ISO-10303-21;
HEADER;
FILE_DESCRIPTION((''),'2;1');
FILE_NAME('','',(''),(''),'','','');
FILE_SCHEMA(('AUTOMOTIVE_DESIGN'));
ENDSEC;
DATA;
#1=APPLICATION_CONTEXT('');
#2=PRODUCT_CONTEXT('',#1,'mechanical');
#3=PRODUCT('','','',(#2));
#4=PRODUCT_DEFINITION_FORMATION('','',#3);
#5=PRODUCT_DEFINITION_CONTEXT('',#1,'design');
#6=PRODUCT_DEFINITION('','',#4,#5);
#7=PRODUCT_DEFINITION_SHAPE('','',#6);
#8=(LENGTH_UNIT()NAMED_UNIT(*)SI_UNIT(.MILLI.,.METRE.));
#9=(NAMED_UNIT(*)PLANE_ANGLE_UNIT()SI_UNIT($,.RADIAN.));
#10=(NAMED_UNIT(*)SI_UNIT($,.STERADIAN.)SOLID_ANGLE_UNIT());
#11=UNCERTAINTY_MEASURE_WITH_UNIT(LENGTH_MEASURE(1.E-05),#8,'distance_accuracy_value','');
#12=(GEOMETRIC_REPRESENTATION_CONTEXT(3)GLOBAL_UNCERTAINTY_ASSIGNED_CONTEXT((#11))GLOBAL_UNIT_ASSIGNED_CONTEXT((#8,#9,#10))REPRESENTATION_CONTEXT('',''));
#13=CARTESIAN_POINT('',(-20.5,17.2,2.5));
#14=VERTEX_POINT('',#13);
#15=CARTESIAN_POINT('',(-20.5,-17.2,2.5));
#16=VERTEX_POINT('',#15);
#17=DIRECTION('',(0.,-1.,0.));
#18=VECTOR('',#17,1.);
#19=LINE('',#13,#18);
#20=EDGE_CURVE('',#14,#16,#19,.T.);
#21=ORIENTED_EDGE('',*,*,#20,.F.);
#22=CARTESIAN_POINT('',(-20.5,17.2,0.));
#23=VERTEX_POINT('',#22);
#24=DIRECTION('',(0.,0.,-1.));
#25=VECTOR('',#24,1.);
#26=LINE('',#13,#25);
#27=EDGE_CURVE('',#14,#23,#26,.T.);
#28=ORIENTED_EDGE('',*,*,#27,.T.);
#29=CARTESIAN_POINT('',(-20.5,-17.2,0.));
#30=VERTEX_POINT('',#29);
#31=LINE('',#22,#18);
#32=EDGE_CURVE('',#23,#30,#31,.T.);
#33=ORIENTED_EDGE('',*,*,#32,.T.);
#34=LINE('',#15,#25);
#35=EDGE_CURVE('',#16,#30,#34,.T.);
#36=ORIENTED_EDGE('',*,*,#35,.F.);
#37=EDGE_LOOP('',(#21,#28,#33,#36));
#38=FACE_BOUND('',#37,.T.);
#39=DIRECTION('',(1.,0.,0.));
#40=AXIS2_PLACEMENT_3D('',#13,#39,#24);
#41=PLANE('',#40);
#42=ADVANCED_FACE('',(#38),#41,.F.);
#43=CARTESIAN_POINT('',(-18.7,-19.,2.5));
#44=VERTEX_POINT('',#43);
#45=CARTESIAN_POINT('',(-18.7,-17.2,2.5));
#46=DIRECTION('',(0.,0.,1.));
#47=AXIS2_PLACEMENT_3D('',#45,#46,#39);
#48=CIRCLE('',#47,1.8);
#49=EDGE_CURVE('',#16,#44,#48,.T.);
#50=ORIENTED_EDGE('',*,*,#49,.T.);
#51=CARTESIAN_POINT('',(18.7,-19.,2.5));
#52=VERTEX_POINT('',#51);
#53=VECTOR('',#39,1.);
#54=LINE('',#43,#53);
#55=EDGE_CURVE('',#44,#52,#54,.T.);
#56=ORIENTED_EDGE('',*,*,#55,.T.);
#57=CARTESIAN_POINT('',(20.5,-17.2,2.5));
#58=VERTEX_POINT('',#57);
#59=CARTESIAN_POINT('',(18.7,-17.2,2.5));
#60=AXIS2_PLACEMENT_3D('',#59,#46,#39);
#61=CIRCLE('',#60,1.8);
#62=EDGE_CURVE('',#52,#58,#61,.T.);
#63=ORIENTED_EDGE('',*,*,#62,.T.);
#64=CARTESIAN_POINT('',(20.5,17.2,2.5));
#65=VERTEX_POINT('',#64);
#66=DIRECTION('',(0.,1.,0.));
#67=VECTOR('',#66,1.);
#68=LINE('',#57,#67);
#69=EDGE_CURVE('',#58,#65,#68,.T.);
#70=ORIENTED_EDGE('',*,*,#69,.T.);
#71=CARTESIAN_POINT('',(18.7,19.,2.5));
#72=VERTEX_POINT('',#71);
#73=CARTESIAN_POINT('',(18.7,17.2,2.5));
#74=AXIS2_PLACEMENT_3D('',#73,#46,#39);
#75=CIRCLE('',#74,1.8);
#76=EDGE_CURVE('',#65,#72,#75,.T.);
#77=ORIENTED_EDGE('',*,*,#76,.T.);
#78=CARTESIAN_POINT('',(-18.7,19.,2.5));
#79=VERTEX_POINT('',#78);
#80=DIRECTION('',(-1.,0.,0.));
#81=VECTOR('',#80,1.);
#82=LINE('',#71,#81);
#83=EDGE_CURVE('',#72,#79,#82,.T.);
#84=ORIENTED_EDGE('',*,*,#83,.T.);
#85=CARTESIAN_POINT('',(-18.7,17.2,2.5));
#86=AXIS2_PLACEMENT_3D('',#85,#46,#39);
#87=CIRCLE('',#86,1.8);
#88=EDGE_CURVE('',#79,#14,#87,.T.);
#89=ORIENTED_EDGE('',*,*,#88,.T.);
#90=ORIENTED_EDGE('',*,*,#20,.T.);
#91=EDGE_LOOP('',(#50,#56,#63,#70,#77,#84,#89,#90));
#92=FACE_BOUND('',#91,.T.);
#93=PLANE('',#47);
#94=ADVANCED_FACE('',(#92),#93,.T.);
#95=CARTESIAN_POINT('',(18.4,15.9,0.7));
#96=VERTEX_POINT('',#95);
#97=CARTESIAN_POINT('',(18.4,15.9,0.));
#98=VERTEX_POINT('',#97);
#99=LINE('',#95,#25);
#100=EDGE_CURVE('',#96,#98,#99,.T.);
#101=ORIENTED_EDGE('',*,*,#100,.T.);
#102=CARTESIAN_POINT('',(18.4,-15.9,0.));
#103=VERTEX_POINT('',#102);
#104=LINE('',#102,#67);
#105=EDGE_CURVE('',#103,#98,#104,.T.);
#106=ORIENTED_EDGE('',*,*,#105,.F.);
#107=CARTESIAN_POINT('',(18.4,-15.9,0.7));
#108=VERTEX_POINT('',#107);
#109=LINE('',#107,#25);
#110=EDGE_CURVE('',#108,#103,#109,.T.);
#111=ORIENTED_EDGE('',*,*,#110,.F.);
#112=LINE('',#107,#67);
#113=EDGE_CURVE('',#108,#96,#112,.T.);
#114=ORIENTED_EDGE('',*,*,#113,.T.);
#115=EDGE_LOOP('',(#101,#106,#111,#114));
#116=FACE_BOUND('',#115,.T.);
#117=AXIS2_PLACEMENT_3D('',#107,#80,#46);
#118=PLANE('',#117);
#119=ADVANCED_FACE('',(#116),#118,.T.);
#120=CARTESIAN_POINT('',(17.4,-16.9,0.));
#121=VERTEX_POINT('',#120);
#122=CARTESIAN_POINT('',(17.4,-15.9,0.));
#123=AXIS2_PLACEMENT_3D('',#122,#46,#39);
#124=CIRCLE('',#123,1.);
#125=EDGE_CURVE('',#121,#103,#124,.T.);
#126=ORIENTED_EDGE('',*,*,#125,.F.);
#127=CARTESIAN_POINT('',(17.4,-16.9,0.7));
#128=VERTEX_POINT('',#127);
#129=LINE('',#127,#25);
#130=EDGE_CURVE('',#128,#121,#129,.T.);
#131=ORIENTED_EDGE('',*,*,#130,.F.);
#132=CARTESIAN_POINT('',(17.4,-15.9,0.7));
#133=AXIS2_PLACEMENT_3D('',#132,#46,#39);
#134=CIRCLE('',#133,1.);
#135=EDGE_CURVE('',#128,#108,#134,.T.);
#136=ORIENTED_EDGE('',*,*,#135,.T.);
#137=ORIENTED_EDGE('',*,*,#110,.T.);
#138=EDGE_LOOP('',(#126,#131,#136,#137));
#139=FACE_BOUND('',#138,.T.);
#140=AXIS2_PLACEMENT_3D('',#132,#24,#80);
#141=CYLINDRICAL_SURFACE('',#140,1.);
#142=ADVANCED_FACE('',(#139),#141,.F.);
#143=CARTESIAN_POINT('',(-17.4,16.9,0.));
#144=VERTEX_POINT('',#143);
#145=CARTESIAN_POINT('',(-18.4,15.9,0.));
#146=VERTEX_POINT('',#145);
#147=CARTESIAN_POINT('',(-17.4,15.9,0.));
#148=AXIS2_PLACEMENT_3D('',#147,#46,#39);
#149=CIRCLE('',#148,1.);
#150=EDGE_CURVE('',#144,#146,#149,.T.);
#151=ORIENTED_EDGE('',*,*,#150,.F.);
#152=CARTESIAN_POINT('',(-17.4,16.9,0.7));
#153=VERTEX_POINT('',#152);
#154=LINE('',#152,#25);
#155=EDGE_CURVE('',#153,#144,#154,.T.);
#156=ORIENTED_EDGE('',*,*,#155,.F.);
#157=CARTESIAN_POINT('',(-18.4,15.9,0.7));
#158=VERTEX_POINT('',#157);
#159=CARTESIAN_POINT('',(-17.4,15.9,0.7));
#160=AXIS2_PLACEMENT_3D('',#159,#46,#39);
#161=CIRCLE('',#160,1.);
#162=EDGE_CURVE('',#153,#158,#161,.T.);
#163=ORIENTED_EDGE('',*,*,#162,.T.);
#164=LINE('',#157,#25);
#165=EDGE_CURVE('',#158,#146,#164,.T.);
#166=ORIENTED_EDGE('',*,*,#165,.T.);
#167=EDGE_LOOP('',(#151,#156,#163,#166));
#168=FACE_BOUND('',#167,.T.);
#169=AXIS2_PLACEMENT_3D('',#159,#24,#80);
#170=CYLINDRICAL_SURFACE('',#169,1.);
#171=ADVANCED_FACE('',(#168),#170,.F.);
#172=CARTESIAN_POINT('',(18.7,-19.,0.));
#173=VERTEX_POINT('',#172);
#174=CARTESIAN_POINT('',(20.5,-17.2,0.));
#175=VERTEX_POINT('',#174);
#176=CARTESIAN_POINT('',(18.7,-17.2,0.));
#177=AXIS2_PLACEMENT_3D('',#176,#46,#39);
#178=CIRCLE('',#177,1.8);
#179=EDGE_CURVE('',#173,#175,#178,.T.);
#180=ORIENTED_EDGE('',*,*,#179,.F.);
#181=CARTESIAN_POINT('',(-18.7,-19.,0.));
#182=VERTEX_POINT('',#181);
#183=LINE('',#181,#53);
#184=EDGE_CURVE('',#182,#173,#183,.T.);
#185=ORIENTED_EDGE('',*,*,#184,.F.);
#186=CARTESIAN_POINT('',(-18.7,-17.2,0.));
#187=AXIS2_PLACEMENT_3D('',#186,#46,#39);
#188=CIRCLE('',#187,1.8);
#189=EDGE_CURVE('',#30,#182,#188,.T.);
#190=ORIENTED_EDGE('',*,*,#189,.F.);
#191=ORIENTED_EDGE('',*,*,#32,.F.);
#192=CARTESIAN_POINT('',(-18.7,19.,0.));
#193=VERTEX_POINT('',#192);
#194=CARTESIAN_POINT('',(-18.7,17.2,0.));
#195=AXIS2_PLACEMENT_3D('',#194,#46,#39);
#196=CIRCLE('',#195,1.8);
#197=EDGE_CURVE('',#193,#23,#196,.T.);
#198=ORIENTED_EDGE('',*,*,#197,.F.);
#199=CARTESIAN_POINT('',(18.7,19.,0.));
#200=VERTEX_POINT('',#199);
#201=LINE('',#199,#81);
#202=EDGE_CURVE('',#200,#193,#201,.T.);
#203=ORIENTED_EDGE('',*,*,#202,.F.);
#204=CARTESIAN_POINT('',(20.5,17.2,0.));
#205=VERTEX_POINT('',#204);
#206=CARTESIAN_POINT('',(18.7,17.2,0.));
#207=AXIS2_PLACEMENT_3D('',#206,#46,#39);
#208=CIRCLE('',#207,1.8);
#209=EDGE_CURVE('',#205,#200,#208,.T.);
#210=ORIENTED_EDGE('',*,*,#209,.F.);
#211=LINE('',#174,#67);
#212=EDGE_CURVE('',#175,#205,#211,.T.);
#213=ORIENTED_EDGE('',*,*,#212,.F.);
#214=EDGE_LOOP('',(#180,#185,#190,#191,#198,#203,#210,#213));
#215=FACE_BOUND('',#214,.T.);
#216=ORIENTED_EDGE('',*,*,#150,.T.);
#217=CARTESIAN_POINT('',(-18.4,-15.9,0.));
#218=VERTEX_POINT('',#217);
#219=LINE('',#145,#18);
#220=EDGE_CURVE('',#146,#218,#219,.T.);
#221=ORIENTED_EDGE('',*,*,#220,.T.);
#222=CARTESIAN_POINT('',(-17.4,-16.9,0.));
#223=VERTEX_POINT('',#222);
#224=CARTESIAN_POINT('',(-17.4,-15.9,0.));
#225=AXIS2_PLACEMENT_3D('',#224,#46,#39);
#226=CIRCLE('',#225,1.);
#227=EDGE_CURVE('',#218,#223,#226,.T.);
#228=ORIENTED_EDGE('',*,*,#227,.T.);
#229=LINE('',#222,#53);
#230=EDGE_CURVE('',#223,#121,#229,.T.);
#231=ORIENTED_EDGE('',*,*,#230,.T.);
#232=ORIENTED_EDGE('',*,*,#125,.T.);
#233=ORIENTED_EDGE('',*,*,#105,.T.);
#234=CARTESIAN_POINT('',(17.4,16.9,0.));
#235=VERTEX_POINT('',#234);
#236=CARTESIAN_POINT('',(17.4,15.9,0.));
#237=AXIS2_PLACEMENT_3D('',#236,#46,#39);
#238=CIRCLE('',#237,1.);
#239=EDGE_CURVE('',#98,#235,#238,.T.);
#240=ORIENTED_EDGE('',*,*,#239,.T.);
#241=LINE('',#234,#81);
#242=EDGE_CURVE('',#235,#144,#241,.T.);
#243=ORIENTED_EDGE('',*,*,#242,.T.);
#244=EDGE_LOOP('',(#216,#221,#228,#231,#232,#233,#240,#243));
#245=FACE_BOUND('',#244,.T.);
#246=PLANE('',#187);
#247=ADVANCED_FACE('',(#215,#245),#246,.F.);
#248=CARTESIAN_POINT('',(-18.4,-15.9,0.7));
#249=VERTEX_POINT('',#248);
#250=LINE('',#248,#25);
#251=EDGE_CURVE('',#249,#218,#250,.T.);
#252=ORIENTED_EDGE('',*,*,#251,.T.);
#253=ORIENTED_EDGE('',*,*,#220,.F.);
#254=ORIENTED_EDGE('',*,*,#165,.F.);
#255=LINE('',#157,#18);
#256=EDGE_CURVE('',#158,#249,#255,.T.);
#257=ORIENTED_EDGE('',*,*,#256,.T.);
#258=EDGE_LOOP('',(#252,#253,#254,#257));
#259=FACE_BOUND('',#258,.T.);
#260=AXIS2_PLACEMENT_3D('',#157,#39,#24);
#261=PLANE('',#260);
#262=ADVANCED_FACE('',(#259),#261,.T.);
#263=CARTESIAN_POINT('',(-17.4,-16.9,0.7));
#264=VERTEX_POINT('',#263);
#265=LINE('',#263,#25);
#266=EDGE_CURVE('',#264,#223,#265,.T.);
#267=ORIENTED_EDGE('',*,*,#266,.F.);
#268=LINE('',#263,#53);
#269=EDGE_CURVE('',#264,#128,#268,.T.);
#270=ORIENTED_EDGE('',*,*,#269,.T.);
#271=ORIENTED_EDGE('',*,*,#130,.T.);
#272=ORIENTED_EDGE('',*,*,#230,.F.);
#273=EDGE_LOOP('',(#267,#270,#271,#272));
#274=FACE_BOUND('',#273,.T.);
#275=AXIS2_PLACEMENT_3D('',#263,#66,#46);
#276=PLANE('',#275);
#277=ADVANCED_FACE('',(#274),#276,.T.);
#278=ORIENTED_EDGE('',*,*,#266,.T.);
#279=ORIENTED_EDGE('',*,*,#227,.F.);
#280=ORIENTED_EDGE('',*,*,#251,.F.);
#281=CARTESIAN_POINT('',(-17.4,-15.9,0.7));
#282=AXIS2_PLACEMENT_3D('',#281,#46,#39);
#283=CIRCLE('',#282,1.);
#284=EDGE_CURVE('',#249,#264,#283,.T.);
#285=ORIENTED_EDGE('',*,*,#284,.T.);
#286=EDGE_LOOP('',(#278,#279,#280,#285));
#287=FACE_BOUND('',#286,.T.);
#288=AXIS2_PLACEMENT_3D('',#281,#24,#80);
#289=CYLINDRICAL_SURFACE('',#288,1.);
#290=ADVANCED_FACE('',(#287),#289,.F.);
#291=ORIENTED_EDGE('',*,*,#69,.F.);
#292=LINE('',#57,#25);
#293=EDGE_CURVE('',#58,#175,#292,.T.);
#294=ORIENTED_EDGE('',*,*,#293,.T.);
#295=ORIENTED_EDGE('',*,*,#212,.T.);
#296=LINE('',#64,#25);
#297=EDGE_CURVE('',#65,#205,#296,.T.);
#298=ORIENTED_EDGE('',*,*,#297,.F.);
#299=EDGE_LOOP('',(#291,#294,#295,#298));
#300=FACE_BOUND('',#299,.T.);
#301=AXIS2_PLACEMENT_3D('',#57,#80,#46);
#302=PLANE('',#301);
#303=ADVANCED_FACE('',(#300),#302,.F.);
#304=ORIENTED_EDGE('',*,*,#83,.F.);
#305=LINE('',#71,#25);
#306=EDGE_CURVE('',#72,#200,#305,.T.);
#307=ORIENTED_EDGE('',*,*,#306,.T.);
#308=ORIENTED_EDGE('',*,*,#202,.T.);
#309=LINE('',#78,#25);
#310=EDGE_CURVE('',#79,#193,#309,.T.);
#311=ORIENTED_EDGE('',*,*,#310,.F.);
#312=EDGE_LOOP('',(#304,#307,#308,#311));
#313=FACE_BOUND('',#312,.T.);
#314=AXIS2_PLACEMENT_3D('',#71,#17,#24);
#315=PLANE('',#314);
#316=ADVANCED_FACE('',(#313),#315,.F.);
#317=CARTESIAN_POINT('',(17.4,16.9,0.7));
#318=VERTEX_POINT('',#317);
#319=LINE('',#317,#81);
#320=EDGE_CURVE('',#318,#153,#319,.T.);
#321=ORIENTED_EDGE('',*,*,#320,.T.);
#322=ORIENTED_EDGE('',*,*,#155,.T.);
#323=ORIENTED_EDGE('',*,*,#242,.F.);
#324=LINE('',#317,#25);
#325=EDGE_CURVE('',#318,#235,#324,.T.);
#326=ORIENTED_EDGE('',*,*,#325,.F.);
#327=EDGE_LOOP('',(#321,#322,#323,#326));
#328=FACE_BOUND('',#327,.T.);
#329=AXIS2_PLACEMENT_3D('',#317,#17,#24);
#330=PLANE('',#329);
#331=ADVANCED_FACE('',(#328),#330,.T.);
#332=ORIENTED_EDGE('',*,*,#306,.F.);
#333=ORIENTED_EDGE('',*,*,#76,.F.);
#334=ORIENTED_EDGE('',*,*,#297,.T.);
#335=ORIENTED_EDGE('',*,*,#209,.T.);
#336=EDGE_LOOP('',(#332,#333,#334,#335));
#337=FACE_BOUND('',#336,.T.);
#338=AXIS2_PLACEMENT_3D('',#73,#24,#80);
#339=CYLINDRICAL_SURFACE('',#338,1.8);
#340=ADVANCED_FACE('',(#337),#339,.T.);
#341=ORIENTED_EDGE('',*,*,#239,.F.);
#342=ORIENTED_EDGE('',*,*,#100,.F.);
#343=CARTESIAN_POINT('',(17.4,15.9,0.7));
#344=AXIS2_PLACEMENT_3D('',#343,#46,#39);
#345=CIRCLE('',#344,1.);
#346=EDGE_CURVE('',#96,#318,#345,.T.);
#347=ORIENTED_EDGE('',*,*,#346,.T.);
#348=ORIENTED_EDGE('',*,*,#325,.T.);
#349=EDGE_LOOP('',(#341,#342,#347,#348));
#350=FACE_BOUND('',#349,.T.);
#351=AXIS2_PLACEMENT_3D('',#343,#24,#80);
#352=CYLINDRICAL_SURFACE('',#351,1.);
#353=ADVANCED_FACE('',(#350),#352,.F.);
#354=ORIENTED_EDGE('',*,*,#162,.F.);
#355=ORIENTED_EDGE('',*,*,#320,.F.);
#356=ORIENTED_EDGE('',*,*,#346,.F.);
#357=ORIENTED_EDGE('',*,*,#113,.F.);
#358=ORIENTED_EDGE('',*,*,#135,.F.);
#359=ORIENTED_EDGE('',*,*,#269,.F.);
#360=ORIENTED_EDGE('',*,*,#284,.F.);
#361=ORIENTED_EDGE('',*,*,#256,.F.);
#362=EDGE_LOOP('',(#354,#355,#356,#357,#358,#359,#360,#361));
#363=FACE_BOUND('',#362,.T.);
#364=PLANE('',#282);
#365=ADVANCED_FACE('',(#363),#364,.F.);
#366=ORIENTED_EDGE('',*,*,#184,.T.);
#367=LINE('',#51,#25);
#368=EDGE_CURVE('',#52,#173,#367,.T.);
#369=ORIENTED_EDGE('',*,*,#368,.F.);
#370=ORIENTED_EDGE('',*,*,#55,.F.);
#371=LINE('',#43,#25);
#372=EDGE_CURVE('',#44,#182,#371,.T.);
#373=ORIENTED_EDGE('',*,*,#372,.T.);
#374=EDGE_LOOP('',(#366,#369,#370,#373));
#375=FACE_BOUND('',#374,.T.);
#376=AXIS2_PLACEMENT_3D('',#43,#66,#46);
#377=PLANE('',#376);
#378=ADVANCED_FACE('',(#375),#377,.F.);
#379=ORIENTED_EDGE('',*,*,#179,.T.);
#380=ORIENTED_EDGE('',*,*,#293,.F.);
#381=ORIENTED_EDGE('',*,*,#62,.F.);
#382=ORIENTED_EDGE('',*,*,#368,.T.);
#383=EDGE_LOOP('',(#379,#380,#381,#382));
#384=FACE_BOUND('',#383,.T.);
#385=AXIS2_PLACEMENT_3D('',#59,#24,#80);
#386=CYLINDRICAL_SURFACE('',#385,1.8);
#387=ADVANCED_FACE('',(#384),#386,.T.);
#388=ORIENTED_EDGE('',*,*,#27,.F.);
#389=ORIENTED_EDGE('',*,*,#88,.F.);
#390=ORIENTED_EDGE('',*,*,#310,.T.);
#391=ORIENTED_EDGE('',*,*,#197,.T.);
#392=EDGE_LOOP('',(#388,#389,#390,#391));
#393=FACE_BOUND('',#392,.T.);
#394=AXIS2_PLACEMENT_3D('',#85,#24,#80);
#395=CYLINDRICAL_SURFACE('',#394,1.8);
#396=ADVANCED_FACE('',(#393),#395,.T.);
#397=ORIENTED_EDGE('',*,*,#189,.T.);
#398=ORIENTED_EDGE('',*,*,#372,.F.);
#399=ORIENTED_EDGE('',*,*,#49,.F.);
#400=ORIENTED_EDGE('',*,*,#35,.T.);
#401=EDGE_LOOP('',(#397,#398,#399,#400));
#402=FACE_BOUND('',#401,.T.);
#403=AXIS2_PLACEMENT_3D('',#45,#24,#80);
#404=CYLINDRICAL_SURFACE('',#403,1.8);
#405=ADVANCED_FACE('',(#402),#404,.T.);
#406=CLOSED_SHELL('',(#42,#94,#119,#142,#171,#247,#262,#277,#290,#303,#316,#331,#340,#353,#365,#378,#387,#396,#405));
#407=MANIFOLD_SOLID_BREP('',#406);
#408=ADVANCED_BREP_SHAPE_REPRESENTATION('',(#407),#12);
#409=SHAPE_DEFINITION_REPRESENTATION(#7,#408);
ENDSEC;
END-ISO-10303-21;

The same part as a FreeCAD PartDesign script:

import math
import FreeCAD as App
import Part
import Sketcher

V = App.Vector
Q = App.Units.Quantity

doc = App.newDocument("Part")
params = doc.addObject("Spreadsheet::Sheet", "Params")
for row, (alias, value) in enumerate([
    ("sketch1_radius", "1.8 mm"),
    ("sketch1_width", "37.4 mm"),
    ("sketch1_height", "34.4 mm"),
    ("pad1_length", "2.5 mm"),
    ("sketch2_radius", "1 mm"),
    ("sketch2_width", "34.8 mm"),
    ("sketch2_height", "31.8 mm"),
    ("pocket1_length", "0.7 mm"),
], start=1):
    params.set(f"A{row}", alias)
    params.set(f"B{row}", "=" + value)
    params.setAlias(f"B{row}", alias)

body = doc.addObject("PartDesign::Body", "Body")

# Sketch on XY plane
sketch1 = body.newObject("Sketcher::SketchObject", "Sketch")
sketch1.AttachmentSupport = (doc.getObject("XY_Plane"), [""])
sketch1.MapMode = "FlatFace"
sketch1.addGeometry([
    Part.LineSegment(V(-18.7, -19, 0), V(18.7, -19, 0)),  # 0
    Part.ArcOfCircle(Part.Circle(V(18.7, -17.2, 0), V(0, 0, 1), 1.8), math.radians(-90), math.radians(0)),  # 1
    Part.LineSegment(V(20.5, -17.2, 0), V(20.5, 17.2, 0)),  # 2
    Part.ArcOfCircle(Part.Circle(V(18.7, 17.2, 0), V(0, 0, 1), 1.8), math.radians(0), math.radians(90)),  # 3
    Part.LineSegment(V(18.7, 19, 0), V(-18.7, 19, 0)),  # 4
    Part.ArcOfCircle(Part.Circle(V(-18.7, 17.2, 0), V(0, 0, 1), 1.8), math.radians(90), math.radians(180)),  # 5
    Part.LineSegment(V(-20.5, 17.2, 0), V(-20.5, -17.2, 0)),  # 6
    Part.ArcOfCircle(Part.Circle(V(-18.7, -17.2, 0), V(0, 0, 1), 1.8), math.radians(180), math.radians(270)),  # 7
], False)
sketch1.addConstraint([
    Sketcher.Constraint("Tangent", 0, 2, 1, 1),
    Sketcher.Constraint("Tangent", 1, 2, 2, 1),
    Sketcher.Constraint("Tangent", 2, 2, 3, 1),
    Sketcher.Constraint("Tangent", 3, 2, 4, 1),
    Sketcher.Constraint("Tangent", 4, 2, 5, 1),
    Sketcher.Constraint("Tangent", 5, 2, 6, 1),
    Sketcher.Constraint("Tangent", 6, 2, 7, 1),
    Sketcher.Constraint("Tangent", 7, 2, 0, 1),
    Sketcher.Constraint("Horizontal", 0),
    Sketcher.Constraint("Vertical", 2),
    Sketcher.Constraint("Horizontal", 4),
    Sketcher.Constraint("Vertical", 6),
    Sketcher.Constraint("Equal", 1, 3),
    Sketcher.Constraint("Equal", 3, 5),
    Sketcher.Constraint("Equal", 5, 7),
    Sketcher.Constraint("Symmetric", 1, 3, 5, 3, -1, 1),
    Sketcher.Constraint("Radius", 1, Q("1.8 mm")),
    Sketcher.Constraint("DistanceX", 0, 1, 0, 2, Q("37.4 mm")),
    Sketcher.Constraint("DistanceY", 2, 1, 2, 2, Q("34.4 mm")),
])
sketch1.setExpression("Constraints[16]", "Params.sketch1_radius")
sketch1.setExpression("Constraints[17]", "Params.sketch1_width")
sketch1.setExpression("Constraints[18]", "Params.sketch1_height")
pad1 = body.newObject("PartDesign::Pad", "Pad")
pad1.Profile = sketch1
pad1.setExpression("Length", "Params.pad1_length")

# Sketch on XY plane
sketch2 = body.newObject("Sketcher::SketchObject", "Sketch001")
sketch2.AttachmentSupport = (doc.getObject("XY_Plane"), [""])
sketch2.MapMode = "FlatFace"
sketch2.addGeometry([
    Part.LineSegment(V(-17.4, -16.9, 0), V(17.4, -16.9, 0)),  # 0
    Part.ArcOfCircle(Part.Circle(V(17.4, -15.9, 0), V(0, 0, 1), 1), math.radians(-90), math.radians(0)),  # 1
    Part.LineSegment(V(18.4, -15.9, 0), V(18.4, 15.9, 0)),  # 2
    Part.ArcOfCircle(Part.Circle(V(17.4, 15.9, 0), V(0, 0, 1), 1), math.radians(0), math.radians(90)),  # 3
    Part.LineSegment(V(17.4, 16.9, 0), V(-17.4, 16.9, 0)),  # 4
    Part.ArcOfCircle(Part.Circle(V(-17.4, 15.9, 0), V(0, 0, 1), 1), math.radians(90), math.radians(180)),  # 5
    Part.LineSegment(V(-18.4, 15.9, 0), V(-18.4, -15.9, 0)),  # 6
    Part.ArcOfCircle(Part.Circle(V(-17.4, -15.9, 0), V(0, 0, 1), 1), math.radians(-180), math.radians(-90)),  # 7
], False)
sketch2.addConstraint([
    Sketcher.Constraint("Tangent", 0, 2, 1, 1),
    Sketcher.Constraint("Tangent", 1, 2, 2, 1),
    Sketcher.Constraint("Tangent", 2, 2, 3, 1),
    Sketcher.Constraint("Tangent", 3, 2, 4, 1),
    Sketcher.Constraint("Tangent", 4, 2, 5, 1),
    Sketcher.Constraint("Tangent", 5, 2, 6, 1),
    Sketcher.Constraint("Tangent", 6, 2, 7, 1),
    Sketcher.Constraint("Tangent", 7, 2, 0, 1),
    Sketcher.Constraint("Horizontal", 0),
    Sketcher.Constraint("Vertical", 2),
    Sketcher.Constraint("Horizontal", 4),
    Sketcher.Constraint("Vertical", 6),
    Sketcher.Constraint("Equal", 1, 3),
    Sketcher.Constraint("Equal", 3, 5),
    Sketcher.Constraint("Equal", 5, 7),
    Sketcher.Constraint("Symmetric", 1, 3, 5, 3, -1, 1),
    Sketcher.Constraint("Radius", 1, Q("1 mm")),
    Sketcher.Constraint("DistanceX", 0, 1, 0, 2, Q("34.8 mm")),
    Sketcher.Constraint("DistanceY", 2, 1, 2, 2, Q("31.8 mm")),
])
sketch2.setExpression("Constraints[16]", "Params.sketch2_radius")
sketch2.setExpression("Constraints[17]", "Params.sketch2_width")
sketch2.setExpression("Constraints[18]", "Params.sketch2_height")
pocket1 = body.newObject("PartDesign::Pocket", "Pocket")
pocket1.Profile = sketch2
pocket1.setExpression("Length", "Params.pocket1_length")
pocket1.Reversed = True

doc.recompute()
